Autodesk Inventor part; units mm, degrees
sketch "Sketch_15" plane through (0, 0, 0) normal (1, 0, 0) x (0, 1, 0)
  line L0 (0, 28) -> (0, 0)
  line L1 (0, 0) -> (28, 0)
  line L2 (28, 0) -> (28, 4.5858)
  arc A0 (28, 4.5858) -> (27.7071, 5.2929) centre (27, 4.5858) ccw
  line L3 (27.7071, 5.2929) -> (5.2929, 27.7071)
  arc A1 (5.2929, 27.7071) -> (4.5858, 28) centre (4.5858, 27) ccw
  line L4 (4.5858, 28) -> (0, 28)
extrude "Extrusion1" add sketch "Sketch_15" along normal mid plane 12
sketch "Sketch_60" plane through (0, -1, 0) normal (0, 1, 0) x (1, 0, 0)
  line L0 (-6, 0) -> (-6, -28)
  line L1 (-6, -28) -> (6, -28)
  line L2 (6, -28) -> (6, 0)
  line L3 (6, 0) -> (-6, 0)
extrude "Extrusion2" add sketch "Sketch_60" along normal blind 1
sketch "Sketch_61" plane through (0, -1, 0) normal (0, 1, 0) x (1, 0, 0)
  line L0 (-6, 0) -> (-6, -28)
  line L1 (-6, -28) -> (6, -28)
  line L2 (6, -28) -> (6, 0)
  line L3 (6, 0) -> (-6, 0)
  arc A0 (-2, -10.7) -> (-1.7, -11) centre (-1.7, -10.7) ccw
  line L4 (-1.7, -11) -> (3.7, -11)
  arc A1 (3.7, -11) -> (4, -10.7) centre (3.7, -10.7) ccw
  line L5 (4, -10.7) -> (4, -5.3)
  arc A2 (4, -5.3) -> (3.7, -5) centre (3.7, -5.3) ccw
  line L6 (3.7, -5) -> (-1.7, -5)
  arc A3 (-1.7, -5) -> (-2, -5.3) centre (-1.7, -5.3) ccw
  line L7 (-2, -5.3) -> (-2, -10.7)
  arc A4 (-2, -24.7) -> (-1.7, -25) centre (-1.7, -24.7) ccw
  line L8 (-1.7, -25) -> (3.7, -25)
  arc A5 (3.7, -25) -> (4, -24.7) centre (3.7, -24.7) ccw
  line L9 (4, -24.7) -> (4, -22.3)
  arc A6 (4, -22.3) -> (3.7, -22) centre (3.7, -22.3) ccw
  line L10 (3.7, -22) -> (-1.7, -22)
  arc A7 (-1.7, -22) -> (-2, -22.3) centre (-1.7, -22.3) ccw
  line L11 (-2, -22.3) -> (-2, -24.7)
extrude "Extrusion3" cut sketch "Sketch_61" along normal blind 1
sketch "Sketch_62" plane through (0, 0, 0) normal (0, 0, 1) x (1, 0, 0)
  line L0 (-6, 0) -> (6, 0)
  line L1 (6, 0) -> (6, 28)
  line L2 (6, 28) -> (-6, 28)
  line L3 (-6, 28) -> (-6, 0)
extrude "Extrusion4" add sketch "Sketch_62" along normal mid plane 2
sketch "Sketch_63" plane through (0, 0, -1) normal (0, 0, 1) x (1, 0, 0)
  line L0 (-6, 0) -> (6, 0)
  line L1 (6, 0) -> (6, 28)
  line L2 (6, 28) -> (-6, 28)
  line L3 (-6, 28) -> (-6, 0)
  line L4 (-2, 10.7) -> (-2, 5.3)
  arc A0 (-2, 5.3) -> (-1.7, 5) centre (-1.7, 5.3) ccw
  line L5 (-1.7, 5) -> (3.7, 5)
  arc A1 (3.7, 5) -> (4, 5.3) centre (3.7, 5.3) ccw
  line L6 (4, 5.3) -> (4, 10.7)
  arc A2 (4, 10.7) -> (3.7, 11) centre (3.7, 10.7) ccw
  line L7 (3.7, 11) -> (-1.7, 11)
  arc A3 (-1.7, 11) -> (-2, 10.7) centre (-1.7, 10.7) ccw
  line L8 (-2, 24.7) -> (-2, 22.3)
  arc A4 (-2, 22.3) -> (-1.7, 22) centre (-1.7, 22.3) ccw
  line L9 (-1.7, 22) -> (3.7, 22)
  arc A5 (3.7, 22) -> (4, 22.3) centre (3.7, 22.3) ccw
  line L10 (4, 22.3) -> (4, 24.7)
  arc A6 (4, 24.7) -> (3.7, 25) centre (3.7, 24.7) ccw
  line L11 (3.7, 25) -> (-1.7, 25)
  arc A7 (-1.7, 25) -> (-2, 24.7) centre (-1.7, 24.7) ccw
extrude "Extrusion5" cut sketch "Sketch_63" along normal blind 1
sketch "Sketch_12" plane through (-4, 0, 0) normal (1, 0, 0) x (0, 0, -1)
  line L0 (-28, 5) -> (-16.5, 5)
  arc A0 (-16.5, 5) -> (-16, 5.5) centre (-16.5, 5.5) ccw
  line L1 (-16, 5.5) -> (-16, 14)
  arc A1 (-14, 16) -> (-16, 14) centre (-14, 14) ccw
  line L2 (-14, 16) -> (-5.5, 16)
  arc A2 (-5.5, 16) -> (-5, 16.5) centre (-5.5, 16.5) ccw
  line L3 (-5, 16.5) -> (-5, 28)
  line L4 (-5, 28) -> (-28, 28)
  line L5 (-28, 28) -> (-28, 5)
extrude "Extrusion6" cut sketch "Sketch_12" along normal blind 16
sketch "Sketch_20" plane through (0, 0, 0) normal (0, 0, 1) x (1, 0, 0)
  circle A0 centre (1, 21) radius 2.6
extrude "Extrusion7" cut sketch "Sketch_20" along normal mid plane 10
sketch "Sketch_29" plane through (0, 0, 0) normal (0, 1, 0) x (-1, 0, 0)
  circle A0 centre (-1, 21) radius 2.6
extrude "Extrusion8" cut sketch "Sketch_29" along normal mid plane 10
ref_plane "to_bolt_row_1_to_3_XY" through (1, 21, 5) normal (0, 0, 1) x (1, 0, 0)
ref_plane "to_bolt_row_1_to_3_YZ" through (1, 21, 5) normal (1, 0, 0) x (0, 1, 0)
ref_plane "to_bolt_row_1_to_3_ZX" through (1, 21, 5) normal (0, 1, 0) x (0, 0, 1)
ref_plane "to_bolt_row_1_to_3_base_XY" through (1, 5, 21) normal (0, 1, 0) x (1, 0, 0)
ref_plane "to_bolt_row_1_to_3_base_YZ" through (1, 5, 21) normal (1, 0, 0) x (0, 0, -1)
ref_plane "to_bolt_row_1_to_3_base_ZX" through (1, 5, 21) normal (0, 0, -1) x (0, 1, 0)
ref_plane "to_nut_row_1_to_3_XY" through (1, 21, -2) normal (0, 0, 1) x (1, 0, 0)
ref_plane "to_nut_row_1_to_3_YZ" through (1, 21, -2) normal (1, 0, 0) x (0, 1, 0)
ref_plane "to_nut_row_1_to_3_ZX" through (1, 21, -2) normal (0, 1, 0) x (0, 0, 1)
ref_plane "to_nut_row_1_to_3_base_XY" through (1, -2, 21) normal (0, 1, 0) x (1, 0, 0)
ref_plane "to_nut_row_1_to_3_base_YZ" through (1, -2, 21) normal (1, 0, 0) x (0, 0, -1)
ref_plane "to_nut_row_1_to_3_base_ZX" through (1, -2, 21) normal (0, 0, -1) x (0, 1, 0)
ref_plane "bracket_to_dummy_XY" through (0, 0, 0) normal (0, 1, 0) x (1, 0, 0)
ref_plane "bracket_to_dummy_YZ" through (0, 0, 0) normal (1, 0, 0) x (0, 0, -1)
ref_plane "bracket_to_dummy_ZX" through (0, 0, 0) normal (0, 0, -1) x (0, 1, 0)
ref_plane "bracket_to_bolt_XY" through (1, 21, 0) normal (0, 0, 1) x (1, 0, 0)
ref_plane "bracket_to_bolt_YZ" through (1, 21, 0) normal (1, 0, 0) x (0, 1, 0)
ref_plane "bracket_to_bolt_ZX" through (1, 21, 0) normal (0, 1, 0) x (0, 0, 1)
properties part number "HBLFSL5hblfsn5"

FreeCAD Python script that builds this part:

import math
import FreeCAD as App
import Part
import Sketcher
from FreeCAD import Vector
Q = App.Units.Quantity


def add_polygon(sketch, points):
    """Adds a closed chain of lines whose ends are joined by coincident constraints."""
    first, n = sketch.GeometryCount, len(points)
    for a, b in zip(points, points[1:] + points[:1]):
        sketch.addGeometry(Part.LineSegment(App.Vector(*a, 0), App.Vector(*b, 0)), False)
    for i in range(n):
        sketch.addConstraint(Sketcher.Constraint("Coincident", first + i, 2, first + (i + 1) % n, 1))

doc = App.newDocument("Part")
body = doc.addObject("PartDesign::Body", "Body")

sketch1 = body.newObject("Sketcher::SketchObject", "Sketch")
sketch1.AttachmentSupport = (doc.getObject("YZ_Plane"), [""])
sketch1.MapMode = "FlatFace"
sketch1.addGeometry([
    Part.LineSegment(Vector(4.5858, 28, 0), Vector(0, 28, 0)),
    Part.LineSegment(Vector(0, 28, 0), Vector(0, 0, 0)),
    Part.LineSegment(Vector(0, 0, 0), Vector(28, 0, 0)),
    Part.LineSegment(Vector(28, 0, 0), Vector(28, 4.5858, 0)),
    Part.ArcOfCircle(Part.Circle(Vector(27, 4.5858, 0), Vector(0, 0, 1), 1), math.radians(0), math.radians(45)),
    Part.LineSegment(Vector(27.7071, 5.2929, 0), Vector(5.2929, 27.7071, 0)),
    Part.ArcOfCircle(Part.Circle(Vector(4.5858, 27, 0), Vector(0, 0, 1), 0.99999), math.radians(45), math.radians(90)),
], False)
sketch1.addConstraint([
    Sketcher.Constraint("Coincident", 0, 2, 1, 1),
    Sketcher.Constraint("Coincident", 1, 2, 2, 1),
    Sketcher.Constraint("Coincident", 2, 2, 3, 1),
    Sketcher.Constraint("Tangent", 3, 2, 4, 1),
    Sketcher.Constraint("Tangent", 4, 2, 5, 1),
    Sketcher.Constraint("Tangent", 5, 2, 6, 1),
    Sketcher.Constraint("Tangent", 6, 2, 0, 1),
    Sketcher.Constraint("Horizontal", 0),
    Sketcher.Constraint("Vertical", 1),
    Sketcher.Constraint("Horizontal", 2),
    Sketcher.Constraint("Vertical", 3),
    Sketcher.Constraint("Coincident", 1, 2, -1, 1),
    Sketcher.Constraint("Equal", 4, 6),
    Sketcher.Constraint("Equal", 2, 1),
    Sketcher.Constraint("Equal", 0, 3),
    Sketcher.Constraint("Radius", 4, Q("1 mm")),
    Sketcher.Constraint("DistanceX", 2, 1, 2, 2, Q("28 mm")),
    Sketcher.Constraint("DistanceX", 0, 2, 0, 1, Q("4.5858 mm")),
])
pad1 = body.newObject("PartDesign::Pad", "Pad")
pad1.Profile = sketch1
pad1.Length = 12
pad1.Midplane = True

sketch2 = body.newObject("Sketcher::SketchObject", "Sketch001")
sketch2.AttachmentSupport = (doc.getObject("XZ_Plane"), [""])
sketch2.MapMode = "FlatFace"
sketch2.AttachmentOffset = App.Placement(Vector(0, 0, 1), App.Rotation())
add_polygon(sketch2, [(6, 0), (-6, 0), (-6, 28), (6, 28)])
sketch2.addConstraint([
    Sketcher.Constraint("Horizontal", 0),
    Sketcher.Constraint("Vertical", 1),
    Sketcher.Constraint("Horizontal", 2),
    Sketcher.Constraint("Vertical", 3),
    Sketcher.Constraint("Symmetric", 0, 2, 3, 2, -1, 1),
    Sketcher.Constraint("DistanceX", 0, 2, 0, 1, Q("12 mm")),
    Sketcher.Constraint("DistanceY", 1, 1, 1, 2, Q("28 mm")),
])
pad2 = body.newObject("PartDesign::Pad", "Pad001")
pad2.Profile = sketch2
pad2.Length = 1
pad2.Reversed = True

sketch3 = body.newObject("Sketcher::SketchObject", "Sketch002")
sketch3.AttachmentSupport = (doc.getObject("XZ_Plane"), [""])
sketch3.MapMode = "FlatFace"
sketch3.AttachmentOffset = App.Placement(Vector(0, 0, 1), App.Rotation())
add_polygon(sketch3, [(6, 0), (-6, 0), (-6, 28), (6, 28)])
sketch3.addGeometry(Part.ArcOfCircle(Part.Circle(Vector(-1.7, 24.7, 0), Vector(0, 0, 1), 0.3), math.radians(90), math.radians(180)), False)
sketch3.addGeometry(Part.LineSegment(Vector(-2, 24.7, 0), Vector(-2, 22.3, 0)), False)
sketch3.addGeometry(Part.ArcOfCircle(Part.Circle(Vector(-1.7, 22.3, 0), Vector(0, 0, 1), 0.3), math.radians(180), math.radians(270)), False)
sketch3.addGeometry(Part.LineSegment(Vector(-1.7, 22, 0), Vector(3.7, 22, 0)), False)
sketch3.addGeometry(Part.ArcOfCircle(Part.Circle(Vector(3.7, 22.3, 0), Vector(0, 0, 1), 0.3), math.radians(-90), math.radians(0)), False)
sketch3.addGeometry(Part.LineSegment(Vector(4, 22.3, 0), Vector(4, 24.7, 0)), False)
sketch3.addGeometry(Part.ArcOfCircle(Part.Circle(Vector(3.7, 24.7, 0), Vector(0, 0, 1), 0.3), math.radians(0), math.radians(90)), False)
sketch3.addGeometry(Part.LineSegment(Vector(3.7, 25, 0), Vector(-1.7, 25, 0)), False)
sketch3.addGeometry(Part.ArcOfCircle(Part.Circle(Vector(-1.7, 10.7, 0), Vector(0, 0, 1), 0.3), math.radians(90), math.radians(180)), False)
sketch3.addGeometry(Part.LineSegment(Vector(-2, 10.7, 0), Vector(-2, 5.3, 0)), False)
sketch3.addGeometry(Part.ArcOfCircle(Part.Circle(Vector(-1.7, 5.3, 0), Vector(0, 0, 1), 0.3), math.radians(180), math.radians(270)), False)
sketch3.addGeometry(Part.LineSegment(Vector(-1.7, 5, 0), Vector(3.7, 5, 0)), False)
sketch3.addGeometry(Part.ArcOfCircle(Part.Circle(Vector(3.7, 5.3, 0), Vector(0, 0, 1), 0.3), math.radians(-90), math.radians(0)), False)
sketch3.addGeometry(Part.LineSegment(Vector(4, 5.3, 0), Vector(4, 10.7, 0)), False)
sketch3.addGeometry(Part.ArcOfCircle(Part.Circle(Vector(3.7, 10.7, 0), Vector(0, 0, 1), 0.3), math.radians(0), math.radians(90)), False)
sketch3.addGeometry(Part.LineSegment(Vector(3.7, 11, 0), Vector(-1.7, 11, 0)), False)
sketch3.addConstraint([
    Sketcher.Constraint("Tangent", 4, 2, 5, 1),
    Sketcher.Constraint("Tangent", 5, 2, 6, 1),
    Sketcher.Constraint("Tangent", 6, 2, 7, 1),
    Sketcher.Constraint("Tangent", 7, 2, 8, 1),
    Sketcher.Constraint("Tangent", 8, 2, 9, 1),
    Sketcher.Constraint("Tangent", 9, 2, 10, 1),
    Sketcher.Constraint("Tangent", 10, 2, 11, 1),
    Sketcher.Constraint("Tangent", 11, 2, 4, 1),
    Sketcher.Constraint("Tangent", 12, 2, 13, 1),
    Sketcher.Constraint("Tangent", 13, 2, 14, 1),
    Sketcher.Constraint("Tangent", 14, 2, 15, 1),
    Sketcher.Constraint("Tangent", 15, 2, 16, 1),
    Sketcher.Constraint("Tangent", 16, 2, 17, 1),
    Sketcher.Constraint("Tangent", 17, 2, 18, 1),
    Sketcher.Constraint("Tangent", 18, 2, 19, 1),
    Sketcher.Constraint("Tangent", 19, 2, 12, 1),
    Sketcher.Constraint("Horizontal", 0),
    Sketcher.Constraint("Vertical", 1),
    Sketcher.Constraint("Horizontal", 2),
    Sketcher.Constraint("Vertical", 3),
    Sketcher.Constraint("Vertical", 5),
    Sketcher.Constraint("Horizontal", 7),
    Sketcher.Constraint("Vertical", 9),
    Sketcher.Constraint("Horizontal", 11),
    Sketcher.Constraint("Vertical", 13),
    Sketcher.Constraint("Horizontal", 15),
    Sketcher.Constraint("Vertical", 17),
    Sketcher.Constraint("Horizontal", 19),
    Sketcher.Constraint("Equal", 4, 6),
    Sketcher.Constraint("Equal", 6, 8),
    Sketcher.Constraint("Equal", 8, 10),
    Sketcher.Constraint("Equal", 10, 12),
    Sketcher.Constraint("Equal", 12, 14),
    Sketcher.Constraint("Equal", 14, 16),
    Sketcher.Constraint("Equal", 16, 18),
    Sketcher.Constraint("Symmetric", 0, 2, 3, 2, -1, 1),
    Sketcher.Constraint("Vertical", 6, 3, 12, 3),
    Sketcher.Constraint("Vertical", 10, 3, 16, 3),
    Sketcher.Constraint("Equal", 19, 13),
    Sketcher.Constraint("Radius", 4, Q("0.3 mm")),
    Sketcher.Constraint("DistanceX", 0, 2, 0, 1, Q("12 mm")),
    Sketcher.Constraint("DistanceY", 1, 1, 1, 2, Q("28 mm")),
    Sketcher.Constraint("DistanceX", 7, 1, 7, 2, Q("5.4 mm")),
    Sketcher.Constraint("DistanceY", 5, 2, 5, 1, Q("2.4 mm")),
    Sketcher.Constraint("DistanceX", 4, 2, -1, 1, Q("2 mm")),
    Sketcher.Constraint("DistanceY", -1, 1, 6, 2, Q("22 mm")),
    Sketcher.Constraint("DistanceY", -1, 1, 14, 2, Q("5 mm")),
])
pocket1 = body.newObject("PartDesign::Pocket", "Pocket")
pocket1.Profile = sketch3
pocket1.Length = 1

sketch4 = body.newObject("Sketcher::SketchObject", "Sketch003")
sketch4.AttachmentSupport = (doc.getObject("XY_Plane"), [""])
sketch4.MapMode = "FlatFace"
add_polygon(sketch4, [(-6, 28), (-6, 0), (6, 0), (6, 28)])
sketch4.addConstraint([
    Sketcher.Constraint("Vertical", 0),
    Sketcher.Constraint("Horizontal", 1),
    Sketcher.Constraint("Vertical", 2),
    Sketcher.Constraint("Horizontal", 3),
    Sketcher.Constraint("Symmetric", 0, 2, 1, 2, -1, 1),
    Sketcher.Constraint("DistanceX", 1, 1, 1, 2, Q("12 mm")),
    Sketcher.Constraint("DistanceY", 0, 2, 0, 1, Q("28 mm")),
])
pad3 = body.newObject("PartDesign::Pad", "Pad002")
pad3.Profile = sketch4
pad3.Length = 2
pad3.Midplane = True

sketch5 = body.newObject("Sketcher::SketchObject", "Sketch004")
sketch5.AttachmentSupport = (doc.getObject("XY_Plane"), [""])
sketch5.MapMode = "FlatFace"
sketch5.AttachmentOffset = App.Placement(Vector(0, 0, -1), App.Rotation())
add_polygon(sketch5, [(-6, 28), (-6, 0), (6, 0), (6, 28)])
sketch5.addGeometry(Part.LineSegment(Vector(-2, 5.3, 0), Vector(-2, 10.7, 0)), False)
sketch5.addGeometry(Part.ArcOfCircle(Part.Circle(Vector(-1.7, 10.7, 0), Vector(0, 0, 1), 0.3), math.radians(90), math.radians(180)), False)
sketch5.addGeometry(Part.LineSegment(Vector(-1.7, 11, 0), Vector(3.7, 11, 0)), False)
sketch5.addGeometry(Part.ArcOfCircle(Part.Circle(Vector(3.7, 10.7, 0), Vector(0, 0, 1), 0.3), math.radians(0), math.radians(90)), False)
sketch5.addGeometry(Part.LineSegment(Vector(4, 10.7, 0), Vector(4, 5.3, 0)), False)
sketch5.addGeometry(Part.ArcOfCircle(Part.Circle(Vector(3.7, 5.3, 0), Vector(0, 0, 1), 0.3), math.radians(-90), math.radians(0)), False)
sketch5.addGeometry(Part.LineSegment(Vector(3.7, 5, 0), Vector(-1.7, 5, 0)), False)
sketch5.addGeometry(Part.ArcOfCircle(Part.Circle(Vector(-1.7, 5.3, 0), Vector(0, 0, 1), 0.3), math.radians(180), math.radians(270)), False)
sketch5.addGeometry(Part.LineSegment(Vector(-2, 22.3, 0), Vector(-2, 24.7, 0)), False)
sketch5.addGeometry(Part.ArcOfCircle(Part.Circle(Vector(-1.7, 24.7, 0), Vector(0, 0, 1), 0.3), math.radians(90), math.radians(180)), False)
sketch5.addGeometry(Part.LineSegment(Vector(-1.7, 25, 0), Vector(3.7, 25, 0)), False)
sketch5.addGeometry(Part.ArcOfCircle(Part.Circle(Vector(3.7, 24.7, 0), Vector(0, 0, 1), 0.3), math.radians(0), math.radians(90)), False)
sketch5.addGeometry(Part.LineSegment(Vector(4, 24.7, 0), Vector(4, 22.3, 0)), False)
sketch5.addGeometry(Part.ArcOfCircle(Part.Circle(Vector(3.7, 22.3, 0), Vector(0, 0, 1), 0.3), math.radians(-90), math.radians(0)), False)
sketch5.addGeometry(Part.LineSegment(Vector(3.7, 22, 0), Vector(-1.7, 22, 0)), False)
sketch5.addGeometry(Part.ArcOfCircle(Part.Circle(Vector(-1.7, 22.3, 0), Vector(0, 0, 1), 0.3), math.radians(180), math.radians(270)), False)
sketch5.addConstraint([
    Sketcher.Constraint("Tangent", 4, 2, 5, 2),
    Sketcher.Constraint("Tangent", 5, 1, 6, 1),
    Sketcher.Constraint("Tangent", 6, 2, 7, 2),
    Sketcher.Constraint("Tangent", 7, 1, 8, 1),
    Sketcher.Constraint("Tangent", 8, 2, 9, 2),
    Sketcher.Constraint("Tangent", 9, 1, 10, 1),
    Sketcher.Constraint("Tangent", 10, 2, 11, 2),
    Sketcher.Constraint("Tangent", 11, 1, 4, 1),
    Sketcher.Constraint("Tangent", 12, 2, 13, 2),
    Sketcher.Constraint("Tangent", 13, 1, 14, 1),
    Sketcher.Constraint("Tangent", 14, 2, 15, 2),
    Sketcher.Constraint("Tangent", 15, 1, 16, 1),
    Sketcher.Constraint("Tangent", 16, 2, 17, 2),
    Sketcher.Constraint("Tangent", 17, 1, 18, 1),
    Sketcher.Constraint("Tangent", 18, 2, 19, 2),
    Sketcher.Constraint("Tangent", 19, 1, 12, 1),
    Sketcher.Constraint("Vertical", 0),
    Sketcher.Constraint("Horizontal", 1),
    Sketcher.Constraint("Vertical", 2),
    Sketcher.Constraint("Horizontal", 3),
    Sketcher.Constraint("Vertical", 4),
    Sketcher.Constraint("Horizontal", 6),
    Sketcher.Constraint("Vertical", 8),
    Sketcher.Constraint("Horizontal", 10),
    Sketcher.Constraint("Vertical", 12),
    Sketcher.Constraint("Horizontal", 14),
    Sketcher.Constraint("Vertical", 16),
    Sketcher.Constraint("Horizontal", 18),
    Sketcher.Constraint("Equal", 5, 7),
    Sketcher.Constraint("Equal", 7, 9),
    Sketcher.Constraint("Equal", 9, 11),
    Sketcher.Constraint("Equal", 11, 13),
    Sketcher.Constraint("Equal", 13, 15),
    Sketcher.Constraint("Equal", 15, 17),
    Sketcher.Constraint("Equal", 17, 19),
    Sketcher.Constraint("Symmetric", 0, 2, 1, 2, -1, 1),
    Sketcher.Constraint("Vertical", 11, 3, 13, 3),
    Sketcher.Constraint("Vertical", 9, 3, 15, 3),
    Sketcher.Constraint("Equal", 18, 4),
    Sketcher.Constraint("Radius", 5, Q("0.3 mm")),
    Sketcher.Constraint("DistanceX", 1, 1, 1, 2, Q("12 mm")),
    Sketcher.Constraint("DistanceY", 0, 2, 0, 1, Q("28 mm")),
    Sketcher.Constraint("DistanceX", 6, 1, 6, 2, Q("5.4 mm")),
    Sketcher.Constraint("DistanceY", 12, 1, 12, 2, Q("2.4 mm")),
    Sketcher.Constraint("DistanceX", 4, 2, -1, 1, Q("2 mm")),
    Sketcher.Constraint("DistanceY", -1, 1, 5, 1, Q("11 mm")),
    Sketcher.Constraint("DistanceY", -1, 1, 13, 1, Q("25 mm")),
])
pocket2 = body.newObject("PartDesign::Pocket", "Pocket001")
pocket2.Profile = sketch5
pocket2.Length = 1
pocket2.Reversed = True

sketch6 = body.newObject("Sketcher::SketchObject", "Sketch005")
sketch6.AttachmentSupport = (doc.getObject("YZ_Plane"), [""])
sketch6.MapMode = "FlatFace"
sketch6.AttachmentOffset = App.Placement(Vector(0, 0, -4), App.Rotation())
sketch6.addGeometry([
    Part.LineSegment(Vector(28, 28, 0), Vector(5, 28, 0)),
    Part.LineSegment(Vector(5, 28, 0), Vector(5, 16.5, 0)),
    Part.ArcOfCircle(Part.Circle(Vector(5.5, 16.5, 0), Vector(0, 0, 1), 0.5), math.radians(180), math.radians(270)),
    Part.LineSegment(Vector(5.5, 16, 0), Vector(14, 16, 0)),
    Part.ArcOfCircle(Part.Circle(Vector(14, 14, 0), Vector(0, 0, 1), 2), math.radians(0), math.radians(90)),
    Part.LineSegment(Vector(16, 14, 0), Vector(16, 5.5, 0)),
    Part.ArcOfCircle(Part.Circle(Vector(16.5, 5.5, 0), Vector(0, 0, 1), 0.5), math.radians(180), math.radians(270)),
    Part.LineSegment(Vector(16.5, 5, 0), Vector(28, 5, 0)),
    Part.LineSegment(Vector(28, 5, 0), Vector(28, 28, 0)),
], False)
sketch6.addConstraint([
    Sketcher.Constraint("Coincident", 0, 2, 1, 1),
    Sketcher.Constraint("Tangent", 1, 2, 2, 1),
    Sketcher.Constraint("Tangent", 2, 2, 3, 1),
    Sketcher.Constraint("Tangent", 3, 2, 4, 2),
    Sketcher.Constraint("Tangent", 4, 1, 5, 1),
    Sketcher.Constraint("Tangent", 5, 2, 6, 1),
    Sketcher.Constraint("Tangent", 6, 2, 7, 1),
    Sketcher.Constraint("Coincident", 7, 2, 8, 1),
    Sketcher.Constraint("Coincident", 8, 2, 0, 1),
    Sketcher.Constraint("Horizontal", 0),
    Sketcher.Constraint("Vertical", 1),
    Sketcher.Constraint("Horizontal", 3),
    Sketcher.Constraint("Vertical", 5),
    Sketcher.Constraint("Horizontal", 7),
    Sketcher.Constraint("Vertical", 8),
    Sketcher.Constraint("Equal", 2, 6),
    Sketcher.Constraint("Equal", 7, 1),
    Sketcher.Constraint("Equal", 3, 5),
    Sketcher.Constraint("Radius", 4, Q("2 mm")),
    Sketcher.Constraint("Radius", 2, Q("0.5 mm")),
    Sketcher.Constraint("DistanceX", 0, 2, 0, 1, Q("23 mm")),
    Sketcher.Constraint("DistanceX", 3, 1, 3, 2, Q("8.5 mm")),
    Sketcher.Constraint("DistanceX", -1, 1, 4, 3, Q("14 mm")),
    Sketcher.Constraint("DistanceY", -1, 1, 4, 3, Q("14 mm")),
])
pocket3 = body.newObject("PartDesign::Pocket", "Pocket002")
pocket3.Profile = sketch6
pocket3.Length = 16
pocket3.Reversed = True

sketch7 = body.newObject("Sketcher::SketchObject", "Sketch006")
sketch7.AttachmentSupport = (doc.getObject("XY_Plane"), [""])
sketch7.MapMode = "FlatFace"
sketch7.addGeometry(Part.Circle(Vector(1, 21, 0), Vector(0, 0, 1), 2.6), False)
sketch7.addConstraint([
    Sketcher.Constraint("Diameter", 0, Q("5.2 mm")),
    Sketcher.Constraint("DistanceX", -1, 1, 0, 3, Q("1 mm")),
    Sketcher.Constraint("DistanceY", -1, 1, 0, 3, Q("21 mm")),
])
pocket4 = body.newObject("PartDesign::Pocket", "Pocket003")
pocket4.Profile = sketch7
pocket4.Length = 10
pocket4.Midplane = True

sketch8 = body.newObject("Sketcher::SketchObject", "Sketch007")
sketch8.AttachmentSupport = (doc.getObject("XZ_Plane"), [""])
sketch8.MapMode = "FlatFace"
sketch8.addGeometry(Part.Circle(Vector(1, 21, 0), Vector(0, 0, 1), 2.6), False)
sketch8.addConstraint([
    Sketcher.Constraint("Diameter", 0, Q("5.2 mm")),
    Sketcher.Constraint("DistanceX", -1, 1, 0, 3, Q("1 mm")),
    Sketcher.Constraint("DistanceY", -1, 1, 0, 3, Q("21 mm")),
])
pocket5 = body.newObject("PartDesign::Pocket", "Pocket004")
pocket5.Profile = sketch8
pocket5.Length = 10
pocket5.Midplane = True

doc.recompute()
